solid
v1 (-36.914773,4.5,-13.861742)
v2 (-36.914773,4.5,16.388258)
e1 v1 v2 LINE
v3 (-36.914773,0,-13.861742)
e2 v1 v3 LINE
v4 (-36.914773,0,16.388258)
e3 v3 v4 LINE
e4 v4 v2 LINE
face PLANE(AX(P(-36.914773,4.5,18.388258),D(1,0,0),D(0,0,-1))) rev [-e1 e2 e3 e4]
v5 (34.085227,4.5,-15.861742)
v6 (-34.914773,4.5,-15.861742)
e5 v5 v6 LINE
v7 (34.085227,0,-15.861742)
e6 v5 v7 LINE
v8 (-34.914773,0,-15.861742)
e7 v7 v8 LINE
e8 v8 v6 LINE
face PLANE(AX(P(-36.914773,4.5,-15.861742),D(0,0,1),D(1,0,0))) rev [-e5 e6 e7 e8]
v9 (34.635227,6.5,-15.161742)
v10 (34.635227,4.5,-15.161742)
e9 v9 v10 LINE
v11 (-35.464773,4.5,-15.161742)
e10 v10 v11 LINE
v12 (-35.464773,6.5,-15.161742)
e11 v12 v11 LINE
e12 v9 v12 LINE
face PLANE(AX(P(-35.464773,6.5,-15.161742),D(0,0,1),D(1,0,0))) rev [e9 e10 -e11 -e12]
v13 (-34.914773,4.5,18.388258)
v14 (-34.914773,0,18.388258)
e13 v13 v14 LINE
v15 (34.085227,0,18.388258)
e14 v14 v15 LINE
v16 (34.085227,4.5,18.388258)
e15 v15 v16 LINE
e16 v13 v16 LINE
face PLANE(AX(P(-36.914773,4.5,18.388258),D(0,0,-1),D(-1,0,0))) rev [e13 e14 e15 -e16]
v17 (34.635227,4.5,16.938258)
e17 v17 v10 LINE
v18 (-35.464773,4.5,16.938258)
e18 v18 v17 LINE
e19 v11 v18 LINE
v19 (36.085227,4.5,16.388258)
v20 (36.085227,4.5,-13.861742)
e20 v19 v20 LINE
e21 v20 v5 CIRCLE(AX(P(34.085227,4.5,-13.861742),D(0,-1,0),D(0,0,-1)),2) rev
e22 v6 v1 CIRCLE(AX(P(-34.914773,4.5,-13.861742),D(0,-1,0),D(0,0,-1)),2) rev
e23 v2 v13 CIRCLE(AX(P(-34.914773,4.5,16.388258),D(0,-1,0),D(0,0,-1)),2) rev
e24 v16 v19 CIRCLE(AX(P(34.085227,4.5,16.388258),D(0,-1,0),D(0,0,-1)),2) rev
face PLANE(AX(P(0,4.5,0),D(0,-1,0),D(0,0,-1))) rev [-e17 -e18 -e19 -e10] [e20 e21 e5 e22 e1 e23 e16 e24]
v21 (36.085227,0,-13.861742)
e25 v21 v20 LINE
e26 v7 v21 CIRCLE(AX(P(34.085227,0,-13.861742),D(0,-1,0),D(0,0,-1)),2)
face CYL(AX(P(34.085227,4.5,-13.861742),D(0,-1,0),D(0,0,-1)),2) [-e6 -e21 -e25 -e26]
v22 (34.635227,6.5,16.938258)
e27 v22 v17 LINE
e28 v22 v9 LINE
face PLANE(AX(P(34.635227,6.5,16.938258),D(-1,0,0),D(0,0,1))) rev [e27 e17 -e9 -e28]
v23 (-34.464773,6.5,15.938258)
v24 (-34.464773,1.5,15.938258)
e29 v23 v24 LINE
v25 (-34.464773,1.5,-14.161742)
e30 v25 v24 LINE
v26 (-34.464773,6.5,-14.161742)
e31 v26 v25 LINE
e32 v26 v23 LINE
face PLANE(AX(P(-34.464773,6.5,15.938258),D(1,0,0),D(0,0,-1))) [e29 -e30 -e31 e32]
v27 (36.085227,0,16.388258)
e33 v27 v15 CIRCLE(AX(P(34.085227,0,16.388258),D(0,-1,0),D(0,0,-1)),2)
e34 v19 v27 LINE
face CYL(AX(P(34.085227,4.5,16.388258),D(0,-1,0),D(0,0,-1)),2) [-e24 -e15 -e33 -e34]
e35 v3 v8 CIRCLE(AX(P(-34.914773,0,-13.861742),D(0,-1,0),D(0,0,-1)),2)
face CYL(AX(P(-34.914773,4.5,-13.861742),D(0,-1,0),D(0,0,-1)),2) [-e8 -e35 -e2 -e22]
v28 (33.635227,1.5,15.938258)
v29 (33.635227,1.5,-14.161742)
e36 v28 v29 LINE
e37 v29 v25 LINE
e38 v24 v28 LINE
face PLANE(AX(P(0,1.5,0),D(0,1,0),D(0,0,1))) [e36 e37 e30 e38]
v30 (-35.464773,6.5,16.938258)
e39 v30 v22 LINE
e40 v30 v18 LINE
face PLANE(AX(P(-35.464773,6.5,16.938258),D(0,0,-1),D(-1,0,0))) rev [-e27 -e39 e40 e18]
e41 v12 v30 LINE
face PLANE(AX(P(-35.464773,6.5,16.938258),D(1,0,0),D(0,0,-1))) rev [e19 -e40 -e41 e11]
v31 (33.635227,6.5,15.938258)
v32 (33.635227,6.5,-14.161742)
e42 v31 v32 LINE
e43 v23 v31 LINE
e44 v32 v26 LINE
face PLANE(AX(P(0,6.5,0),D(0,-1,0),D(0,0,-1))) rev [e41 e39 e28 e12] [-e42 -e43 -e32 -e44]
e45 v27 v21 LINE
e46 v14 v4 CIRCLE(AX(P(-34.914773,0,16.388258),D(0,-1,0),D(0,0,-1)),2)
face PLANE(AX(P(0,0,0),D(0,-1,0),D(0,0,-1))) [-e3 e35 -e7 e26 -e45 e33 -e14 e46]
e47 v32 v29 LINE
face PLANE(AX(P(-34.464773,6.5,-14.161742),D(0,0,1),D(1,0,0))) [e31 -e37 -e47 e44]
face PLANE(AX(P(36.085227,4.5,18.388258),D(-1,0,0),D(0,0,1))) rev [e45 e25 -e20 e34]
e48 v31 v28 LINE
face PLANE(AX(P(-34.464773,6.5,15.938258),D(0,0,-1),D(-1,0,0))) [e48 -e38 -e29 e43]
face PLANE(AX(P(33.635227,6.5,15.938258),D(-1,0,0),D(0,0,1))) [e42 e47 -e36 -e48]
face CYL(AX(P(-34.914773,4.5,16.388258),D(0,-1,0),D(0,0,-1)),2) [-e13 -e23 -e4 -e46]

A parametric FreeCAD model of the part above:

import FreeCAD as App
import Part
import Sketcher


def edges_at(feature, points):
    """Names of the edges that pass closest to the given points."""
    edges = feature.Shape.Edges
    near = lambda p: min(range(len(edges)), key=lambda i: edges[i].distToShape(Part.Vertex(*p))[0])
    return sorted({f"Edge{near(p) + 1}" for p in points})

doc = App.newDocument("Part")
body = doc.addObject("PartDesign::Body", "Body")

# Sketch on XZ plane
sketch1 = body.newObject("Sketcher::SketchObject", "Sketch")
sketch1.AttachmentSupport = (doc.getObject("XZ_Plane"), [""])
sketch1.MapMode = "FlatFace"
sketch1.addGeometry(Part.LineSegment(App.Vector(-36.914773, -15.861742, 0), App.Vector(-36.914773, 18.388258, 0)), False)
sketch1.addGeometry(Part.LineSegment(App.Vector(-36.914773, 18.388258, 0), App.Vector(36.085227, 18.388258, 0)), False)
sketch1.addGeometry(Part.LineSegment(App.Vector(36.085227, 18.388258, 0), App.Vector(36.085227, -15.861742, 0)), False)
sketch1.addGeometry(Part.LineSegment(App.Vector(36.085227, -15.861742, 0), App.Vector(-36.914773, -15.861742, 0)), False)
sketch1.addConstraint(Sketcher.Constraint("Coincident", 0, 2, 1, 1))
sketch1.addConstraint(Sketcher.Constraint("Coincident", 1, 2, 2, 1))
sketch1.addConstraint(Sketcher.Constraint("Coincident", 2, 2, 3, 1))
sketch1.addConstraint(Sketcher.Constraint("Coincident", 3, 2, 0, 1))
sketch1.addConstraint(Sketcher.Constraint("Vertical", 0))
sketch1.addConstraint(Sketcher.Constraint("Horizontal", 1))
sketch1.addConstraint(Sketcher.Constraint("Vertical", 2))
sketch1.addConstraint(Sketcher.Constraint("Horizontal", 3))
sketch1.addConstraint(Sketcher.Constraint("DistanceX", 1, 1, 1, 2, 73.0))
sketch1.addConstraint(Sketcher.Constraint("DistanceY", 0, 1, 0, 2, 34.25))
sketch1.addConstraint(Sketcher.Constraint("DistanceX", 0, 2, -1, 1, 36.914773))
sketch1.addConstraint(Sketcher.Constraint("DistanceY", -1, 1, 0, 2, 18.388258))
pad1 = body.newObject("PartDesign::Pad", "Pad")
pad1.Profile = sketch1
pad1.Length = 4.5
pad1.Reversed = True
doc.recompute()

fillet = body.newObject("PartDesign::Fillet", "Fillet")
fillet.Base = (pad1, edges_at(pad1, [
    (-36.915, 2.25, -15.862),
    (36.085, 2.25, -15.862),
    (36.085, 2.25, 18.388),
    (-36.915, 2.25, 18.388),
]))
fillet.Radius = 2

# Sketch on XZ plane
sketch2 = body.newObject("Sketcher::SketchObject", "Sketch001")
sketch2.AttachmentSupport = (doc.getObject("XZ_Plane"), [""])
sketch2.MapMode = "FlatFace"
sketch2.AttachmentOffset = App.Placement(App.Vector(0, 0, -4.5), App.Rotation())
sketch2.addGeometry(Part.LineSegment(App.Vector(-35.464773, -15.161742, 0), App.Vector(-35.464773, 16.938258, 0)), False)
sketch2.addGeometry(Part.LineSegment(App.Vector(-35.464773, 16.938258, 0), App.Vector(34.635227, 16.938258, 0)), False)
sketch2.addGeometry(Part.LineSegment(App.Vector(34.635227, 16.938258, 0), App.Vector(34.635227, -15.161742, 0)), False)
sketch2.addGeometry(Part.LineSegment(App.Vector(34.635227, -15.161742, 0), App.Vector(-35.464773, -15.161742, 0)), False)
sketch2.addGeometry(Part.LineSegment(App.Vector(33.635227, 15.938258, 0), App.Vector(-34.464773, 15.938258, 0)), False)
sketch2.addGeometry(Part.LineSegment(App.Vector(-34.464773, 15.938258, 0), App.Vector(-34.464773, -14.161742, 0)), False)
sketch2.addGeometry(Part.LineSegment(App.Vector(-34.464773, -14.161742, 0), App.Vector(33.635227, -14.161742, 0)), False)
sketch2.addGeometry(Part.LineSegment(App.Vector(33.635227, -14.161742, 0), App.Vector(33.635227, 15.938258, 0)), False)
sketch2.addConstraint(Sketcher.Constraint("Coincident", 0, 2, 1, 1))
sketch2.addConstraint(Sketcher.Constraint("Coincident", 1, 2, 2, 1))
sketch2.addConstraint(Sketcher.Constraint("Coincident", 2, 2, 3, 1))
sketch2.addConstraint(Sketcher.Constraint("Coincident", 3, 2, 0, 1))
sketch2.addConstraint(Sketcher.Constraint("Coincident", 4, 2, 5, 1))
sketch2.addConstraint(Sketcher.Constraint("Coincident", 5, 2, 6, 1))
sketch2.addConstraint(Sketcher.Constraint("Coincident", 6, 2, 7, 1))
sketch2.addConstraint(Sketcher.Constraint("Coincident", 7, 2, 4, 1))
sketch2.addConstraint(Sketcher.Constraint("Vertical", 0))
sketch2.addConstraint(Sketcher.Constraint("Horizontal", 1))
sketch2.addConstraint(Sketcher.Constraint("Vertical", 2))
sketch2.addConstraint(Sketcher.Constraint("Horizontal", 3))
sketch2.addConstraint(Sketcher.Constraint("Horizontal", 4))
sketch2.addConstraint(Sketcher.Constraint("Vertical", 5))
sketch2.addConstraint(Sketcher.Constraint("Horizontal", 6))
sketch2.addConstraint(Sketcher.Constraint("Vertical", 7))
sketch2.addConstraint(Sketcher.Constraint("DistanceX", 1, 1, 1, 2, 70.1))
sketch2.addConstraint(Sketcher.Constraint("DistanceX", 4, 2, 4, 1, 68.1))
sketch2.addConstraint(Sketcher.Constraint("DistanceY", 0, 1, 0, 2, 32.1))
sketch2.addConstraint(Sketcher.Constraint("DistanceY", 5, 2, 5, 1, 30.1))
sketch2.addConstraint(Sketcher.Constraint("DistanceX", 0, 2, 4, 2, 1.0))
sketch2.addConstraint(Sketcher.Constraint("DistanceY", 4, 2, 0, 2, 1.0))
sketch2.addConstraint(Sketcher.Constraint("DistanceX", 0, 2, -1, 1, 35.464773))
sketch2.addConstraint(Sketcher.Constraint("DistanceY", -1, 1, 0, 2, 16.938258))
pad2 = body.newObject("PartDesign::Pad", "Pad001")
pad2.Profile = sketch2
pad2.Length = 2
pad2.Reversed = True

# Sketch on XZ plane
sketch3 = body.newObject("Sketcher::SketchObject", "Sketch002")
sketch3.AttachmentSupport = (doc.getObject("XZ_Plane"), [""])
sketch3.MapMode = "FlatFace"
sketch3.AttachmentOffset = App.Placement(App.Vector(0, 0, -4.5), App.Rotation())
sketch3.addGeometry(Part.LineSegment(App.Vector(-34.464773, -14.161742, 0), App.Vector(-34.464773, 15.938258, 0)), False)
sketch3.addGeometry(Part.LineSegment(App.Vector(-34.464773, 15.938258, 0), App.Vector(33.635227, 15.938258, 0)), False)
sketch3.addGeometry(Part.LineSegment(App.Vector(33.635227, 15.938258, 0), App.Vector(33.635227, -14.161742, 0)), False)
sketch3.addGeometry(Part.LineSegment(App.Vector(33.635227, -14.161742, 0), App.Vector(-34.464773, -14.161742, 0)), False)
sketch3.addConstraint(Sketcher.Constraint("Coincident", 0, 2, 1, 1))
sketch3.addConstraint(Sketcher.Constraint("Coincident", 1, 2, 2, 1))
sketch3.addConstraint(Sketcher.Constraint("Coincident", 2, 2, 3, 1))
sketch3.addConstraint(Sketcher.Constraint("Coincident", 3, 2, 0, 1))
sketch3.addConstraint(Sketcher.Constraint("Vertical", 0))
sketch3.addConstraint(Sketcher.Constraint("Horizontal", 1))
sketch3.addConstraint(Sketcher.Constraint("Vertical", 2))
sketch3.addConstraint(Sketcher.Constraint("Horizontal", 3))
sketch3.addConstraint(Sketcher.Constraint("DistanceX", 1, 1, 1, 2, 68.1))
sketch3.addConstraint(Sketcher.Constraint("DistanceY", 0, 1, 0, 2, 30.1))
sketch3.addConstraint(Sketcher.Constraint("DistanceX", 0, 2, -1, 1, 34.464773))
sketch3.addConstraint(Sketcher.Constraint("DistanceY", -1, 1, 0, 2, 15.938258))
pocket1 = body.newObject("PartDesign::Pocket", "Pocket")
pocket1.Profile = sketch3
pocket1.Length = 3
pocket1.Reversed = True

doc.recompute()
